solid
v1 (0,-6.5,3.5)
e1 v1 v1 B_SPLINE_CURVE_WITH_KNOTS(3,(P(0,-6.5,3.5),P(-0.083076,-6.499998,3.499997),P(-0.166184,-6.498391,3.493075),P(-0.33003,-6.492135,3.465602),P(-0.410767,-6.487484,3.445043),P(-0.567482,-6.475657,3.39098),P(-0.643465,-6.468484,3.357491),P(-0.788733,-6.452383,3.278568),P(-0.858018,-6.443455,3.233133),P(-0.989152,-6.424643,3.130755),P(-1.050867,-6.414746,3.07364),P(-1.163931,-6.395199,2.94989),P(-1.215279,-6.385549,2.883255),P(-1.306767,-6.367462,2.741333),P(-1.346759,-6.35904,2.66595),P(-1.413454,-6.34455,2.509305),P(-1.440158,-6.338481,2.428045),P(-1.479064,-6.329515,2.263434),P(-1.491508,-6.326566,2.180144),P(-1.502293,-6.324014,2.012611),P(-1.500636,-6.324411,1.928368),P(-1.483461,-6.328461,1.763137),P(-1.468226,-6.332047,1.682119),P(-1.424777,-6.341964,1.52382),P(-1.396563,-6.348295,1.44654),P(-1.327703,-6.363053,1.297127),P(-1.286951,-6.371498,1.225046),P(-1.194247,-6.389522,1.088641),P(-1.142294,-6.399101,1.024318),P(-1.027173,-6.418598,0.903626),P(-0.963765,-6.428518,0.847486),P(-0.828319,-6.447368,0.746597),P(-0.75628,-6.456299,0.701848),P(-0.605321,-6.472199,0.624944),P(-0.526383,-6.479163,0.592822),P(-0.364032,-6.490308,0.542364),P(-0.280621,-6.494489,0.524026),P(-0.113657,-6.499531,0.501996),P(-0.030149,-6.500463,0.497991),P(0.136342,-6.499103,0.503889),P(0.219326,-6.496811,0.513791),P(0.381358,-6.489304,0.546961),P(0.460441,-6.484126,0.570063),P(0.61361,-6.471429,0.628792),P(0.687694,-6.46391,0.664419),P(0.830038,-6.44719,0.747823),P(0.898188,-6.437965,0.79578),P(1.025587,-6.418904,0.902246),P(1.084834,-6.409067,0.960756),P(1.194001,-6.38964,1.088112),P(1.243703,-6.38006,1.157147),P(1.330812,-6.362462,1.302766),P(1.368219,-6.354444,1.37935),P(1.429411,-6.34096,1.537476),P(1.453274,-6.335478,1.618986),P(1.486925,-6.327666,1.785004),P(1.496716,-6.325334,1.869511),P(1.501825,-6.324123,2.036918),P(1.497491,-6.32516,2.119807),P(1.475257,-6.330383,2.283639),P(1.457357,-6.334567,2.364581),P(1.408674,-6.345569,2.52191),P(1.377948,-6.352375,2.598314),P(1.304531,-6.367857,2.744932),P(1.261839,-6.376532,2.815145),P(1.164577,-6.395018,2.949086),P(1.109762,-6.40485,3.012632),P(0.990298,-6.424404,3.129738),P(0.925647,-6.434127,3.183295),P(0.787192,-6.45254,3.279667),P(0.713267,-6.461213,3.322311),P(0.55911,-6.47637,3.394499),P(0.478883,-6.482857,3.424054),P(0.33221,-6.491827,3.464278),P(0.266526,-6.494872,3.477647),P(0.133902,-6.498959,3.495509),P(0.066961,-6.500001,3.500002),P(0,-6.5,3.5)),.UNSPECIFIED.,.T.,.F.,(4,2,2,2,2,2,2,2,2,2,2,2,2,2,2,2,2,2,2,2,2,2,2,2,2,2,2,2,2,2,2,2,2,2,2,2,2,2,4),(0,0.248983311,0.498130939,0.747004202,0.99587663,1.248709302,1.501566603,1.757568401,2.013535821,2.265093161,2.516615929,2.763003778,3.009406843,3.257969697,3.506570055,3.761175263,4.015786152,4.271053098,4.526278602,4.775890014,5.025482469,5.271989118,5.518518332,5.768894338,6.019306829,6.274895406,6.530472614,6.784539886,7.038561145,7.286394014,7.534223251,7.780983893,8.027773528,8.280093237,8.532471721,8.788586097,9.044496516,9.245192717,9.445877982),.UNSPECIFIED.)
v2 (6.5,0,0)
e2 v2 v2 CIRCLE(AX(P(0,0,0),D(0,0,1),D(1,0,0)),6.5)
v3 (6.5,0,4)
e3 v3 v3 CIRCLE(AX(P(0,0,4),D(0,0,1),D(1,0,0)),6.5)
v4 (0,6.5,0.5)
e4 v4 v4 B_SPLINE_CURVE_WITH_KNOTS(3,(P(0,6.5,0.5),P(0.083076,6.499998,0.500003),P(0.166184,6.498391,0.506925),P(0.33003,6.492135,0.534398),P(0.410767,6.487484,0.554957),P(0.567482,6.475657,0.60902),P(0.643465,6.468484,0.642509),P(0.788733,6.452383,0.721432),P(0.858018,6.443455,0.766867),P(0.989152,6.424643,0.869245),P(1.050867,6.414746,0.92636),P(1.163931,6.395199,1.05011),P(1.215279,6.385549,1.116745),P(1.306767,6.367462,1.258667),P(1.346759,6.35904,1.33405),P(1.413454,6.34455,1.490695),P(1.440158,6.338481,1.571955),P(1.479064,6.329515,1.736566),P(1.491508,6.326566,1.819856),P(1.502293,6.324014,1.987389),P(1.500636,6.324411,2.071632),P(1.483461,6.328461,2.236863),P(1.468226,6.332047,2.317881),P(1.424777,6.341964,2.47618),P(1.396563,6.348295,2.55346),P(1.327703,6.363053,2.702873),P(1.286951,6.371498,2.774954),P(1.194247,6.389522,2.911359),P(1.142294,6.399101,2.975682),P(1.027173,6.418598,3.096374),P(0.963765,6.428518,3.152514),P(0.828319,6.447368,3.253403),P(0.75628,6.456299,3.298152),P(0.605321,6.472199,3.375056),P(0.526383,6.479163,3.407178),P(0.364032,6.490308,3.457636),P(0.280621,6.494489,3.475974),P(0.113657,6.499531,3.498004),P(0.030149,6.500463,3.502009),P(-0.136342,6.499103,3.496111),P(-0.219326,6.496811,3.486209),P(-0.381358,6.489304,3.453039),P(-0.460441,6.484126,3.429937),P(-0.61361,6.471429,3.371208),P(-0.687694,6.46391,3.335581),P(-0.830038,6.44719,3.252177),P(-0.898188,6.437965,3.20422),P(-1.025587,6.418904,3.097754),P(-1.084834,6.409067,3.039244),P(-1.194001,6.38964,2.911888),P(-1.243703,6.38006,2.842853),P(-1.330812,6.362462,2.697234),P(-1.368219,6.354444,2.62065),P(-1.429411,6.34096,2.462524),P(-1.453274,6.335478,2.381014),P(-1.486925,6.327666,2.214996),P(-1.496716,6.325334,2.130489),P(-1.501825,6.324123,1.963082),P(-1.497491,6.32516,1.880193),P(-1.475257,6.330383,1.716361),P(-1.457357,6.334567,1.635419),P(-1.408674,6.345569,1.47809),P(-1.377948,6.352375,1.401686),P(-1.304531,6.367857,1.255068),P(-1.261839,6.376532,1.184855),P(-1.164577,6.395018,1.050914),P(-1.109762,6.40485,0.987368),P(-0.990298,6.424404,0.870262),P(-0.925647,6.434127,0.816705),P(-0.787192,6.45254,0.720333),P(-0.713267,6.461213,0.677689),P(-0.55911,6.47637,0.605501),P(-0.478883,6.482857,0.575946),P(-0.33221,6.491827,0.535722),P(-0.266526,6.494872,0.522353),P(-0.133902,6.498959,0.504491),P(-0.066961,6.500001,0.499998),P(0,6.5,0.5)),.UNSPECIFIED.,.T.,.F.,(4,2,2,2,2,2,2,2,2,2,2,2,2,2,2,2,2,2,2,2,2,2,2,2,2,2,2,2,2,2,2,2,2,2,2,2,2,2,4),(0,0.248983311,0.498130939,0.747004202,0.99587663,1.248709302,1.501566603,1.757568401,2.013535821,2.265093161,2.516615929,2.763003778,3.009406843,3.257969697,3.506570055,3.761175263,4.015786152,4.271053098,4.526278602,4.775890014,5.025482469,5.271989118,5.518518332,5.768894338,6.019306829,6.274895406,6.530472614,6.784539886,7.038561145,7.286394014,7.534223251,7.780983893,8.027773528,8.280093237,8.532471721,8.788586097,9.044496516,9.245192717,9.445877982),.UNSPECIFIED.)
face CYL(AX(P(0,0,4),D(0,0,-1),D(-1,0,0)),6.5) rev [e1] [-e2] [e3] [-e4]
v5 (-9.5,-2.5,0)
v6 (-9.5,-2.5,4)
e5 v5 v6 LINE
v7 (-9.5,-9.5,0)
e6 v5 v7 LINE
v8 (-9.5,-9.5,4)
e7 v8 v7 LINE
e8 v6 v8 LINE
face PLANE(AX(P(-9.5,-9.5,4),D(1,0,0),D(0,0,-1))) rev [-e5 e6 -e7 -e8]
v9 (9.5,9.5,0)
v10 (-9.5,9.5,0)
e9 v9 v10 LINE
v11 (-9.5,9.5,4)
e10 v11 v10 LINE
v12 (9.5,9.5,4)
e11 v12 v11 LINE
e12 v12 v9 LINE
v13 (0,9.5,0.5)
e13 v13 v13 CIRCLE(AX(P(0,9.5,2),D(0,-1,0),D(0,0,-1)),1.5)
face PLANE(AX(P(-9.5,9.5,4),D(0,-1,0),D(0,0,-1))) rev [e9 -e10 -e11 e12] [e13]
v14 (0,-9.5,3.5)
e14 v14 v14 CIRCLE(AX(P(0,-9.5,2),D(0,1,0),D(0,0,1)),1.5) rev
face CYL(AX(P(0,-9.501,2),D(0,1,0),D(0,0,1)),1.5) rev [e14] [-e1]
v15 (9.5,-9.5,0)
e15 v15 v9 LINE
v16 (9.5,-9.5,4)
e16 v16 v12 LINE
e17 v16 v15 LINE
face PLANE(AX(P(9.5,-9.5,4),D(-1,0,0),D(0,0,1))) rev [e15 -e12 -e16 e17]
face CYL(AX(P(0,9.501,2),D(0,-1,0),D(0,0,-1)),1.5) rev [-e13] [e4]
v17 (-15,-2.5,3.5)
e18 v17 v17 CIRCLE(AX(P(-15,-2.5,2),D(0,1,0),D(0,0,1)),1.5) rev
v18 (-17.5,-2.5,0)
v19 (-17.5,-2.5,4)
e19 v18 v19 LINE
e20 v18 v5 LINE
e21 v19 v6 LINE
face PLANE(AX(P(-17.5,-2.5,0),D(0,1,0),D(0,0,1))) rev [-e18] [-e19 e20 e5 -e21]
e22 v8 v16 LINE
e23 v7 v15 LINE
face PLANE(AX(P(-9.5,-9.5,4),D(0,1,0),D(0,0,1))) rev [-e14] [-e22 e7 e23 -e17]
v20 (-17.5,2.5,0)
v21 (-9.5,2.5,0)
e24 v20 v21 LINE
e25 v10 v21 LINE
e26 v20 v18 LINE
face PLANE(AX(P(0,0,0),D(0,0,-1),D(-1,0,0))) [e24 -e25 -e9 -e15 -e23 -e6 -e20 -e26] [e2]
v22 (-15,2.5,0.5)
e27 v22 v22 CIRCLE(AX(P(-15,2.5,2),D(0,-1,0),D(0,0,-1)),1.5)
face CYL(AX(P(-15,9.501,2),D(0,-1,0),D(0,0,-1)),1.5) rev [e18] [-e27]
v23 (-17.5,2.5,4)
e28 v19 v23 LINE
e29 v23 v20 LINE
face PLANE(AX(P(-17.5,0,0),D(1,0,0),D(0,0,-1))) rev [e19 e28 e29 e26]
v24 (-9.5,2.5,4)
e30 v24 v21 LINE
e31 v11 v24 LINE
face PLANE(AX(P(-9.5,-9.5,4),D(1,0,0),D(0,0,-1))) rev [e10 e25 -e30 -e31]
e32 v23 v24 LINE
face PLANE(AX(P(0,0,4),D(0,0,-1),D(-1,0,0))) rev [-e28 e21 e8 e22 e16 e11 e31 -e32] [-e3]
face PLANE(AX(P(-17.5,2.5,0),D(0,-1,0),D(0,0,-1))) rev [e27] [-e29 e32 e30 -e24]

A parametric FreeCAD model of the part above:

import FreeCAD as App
import Part
import Sketcher

V = App.Vector
Q = App.Units.Quantity


def add_polygon(sketch, points):
    """Adds a closed chain of lines whose ends are joined by coincident constraints."""
    first, n = sketch.GeometryCount, len(points)
    for a, b in zip(points, points[1:] + points[:1]):
        sketch.addGeometry(Part.LineSegment(App.Vector(*a, 0), App.Vector(*b, 0)), False)
    for i in range(n):
        sketch.addConstraint(Sketcher.Constraint("Coincident", first + i, 2, first + (i + 1) % n, 1))

doc = App.newDocument("Part")
body = doc.addObject("PartDesign::Body", "Body")

# Sketch on XY plane
sketch1 = body.newObject("Sketcher::SketchObject", "Sketch")
sketch1.AttachmentSupport = (doc.getObject("XY_Plane"), [""])
sketch1.MapMode = "FlatFace"
add_polygon(sketch1, [(-9.5, 9.5), (-9.5, -9.5), (9.5, -9.5), (9.5, 9.5)])  # lines 0-3
sketch1.addGeometry(Part.Circle(V(0, 0, 0), V(0, 0, 1), 6.5), False)  # 4
sketch1.addConstraint([
    Sketcher.Constraint("Vertical", 0),
    Sketcher.Constraint("Horizontal", 1),
    Sketcher.Constraint("Vertical", 2),
    Sketcher.Constraint("Horizontal", 3),
    Sketcher.Constraint("Coincident", 4, 3, -1, 1),
    Sketcher.Constraint("Symmetric", 0, 2, 2, 2, -1, 1),
    Sketcher.Constraint("Equal", 3, 0),
    Sketcher.Constraint("Diameter", 4, Q("13 mm")),
    Sketcher.Constraint("DistanceX", 1, 1, 1, 2, Q("19 mm")),
])
pad1 = body.newObject("PartDesign::Pad", "Pad")
pad1.Profile = sketch1
pad1.Length = 4

# Sketch on XZ plane
sketch2 = body.newObject("Sketcher::SketchObject", "Sketch001")
sketch2.AttachmentSupport = (doc.getObject("XZ_Plane"), [""])
sketch2.MapMode = "FlatFace"
sketch2.addGeometry(Part.Circle(V(0, 2, 0), V(0, 0, 1), 1.5), False)
sketch2.addConstraint([
    Sketcher.Constraint("PointOnObject", 0, 3, -2),
    Sketcher.Constraint("Diameter", 0, Q("3 mm")),
    Sketcher.Constraint("DistanceY", -1, 1, 0, 3, Q("2 mm")),
])
pocket1 = body.newObject("PartDesign::Pocket", "Pocket")
pocket1.Profile = sketch2
pocket1.Length = 9.5

# Sketch on XZ plane
sketch3 = body.newObject("Sketcher::SketchObject", "Sketch002")
sketch3.AttachmentSupport = (doc.getObject("XZ_Plane"), [""])
sketch3.MapMode = "FlatFace"
sketch3.addGeometry(Part.Circle(V(0, 2, 0), V(0, 0, 1), 1.5), False)
sketch3.addConstraint([
    Sketcher.Constraint("PointOnObject", 0, 3, -2),
    Sketcher.Constraint("Diameter", 0, Q("3 mm")),
    Sketcher.Constraint("DistanceY", -1, 1, 0, 3, Q("2 mm")),
])
pocket2 = body.newObject("PartDesign::Pocket", "Pocket001")
pocket2.Profile = sketch3
pocket2.Length = 9.5
pocket2.Reversed = True

# Sketch on YZ plane
sketch4 = body.newObject("Sketcher::SketchObject", "Sketch003")
sketch4.AttachmentSupport = (doc.getObject("YZ_Plane"), [""])
sketch4.MapMode = "FlatFace"
sketch4.AttachmentOffset = App.Placement(V(0, 0, -9.5), App.Rotation())
add_polygon(sketch4, [(2.5, 0), (-2.5, 0), (-2.5, 4), (2.5, 4)])  # lines 0-3
sketch4.addConstraint([
    Sketcher.Constraint("Horizontal", 0),
    Sketcher.Constraint("Vertical", 1),
    Sketcher.Constraint("Horizontal", 2),
    Sketcher.Constraint("Vertical", 3),
    Sketcher.Constraint("Symmetric", 0, 2, 3, 2, -1, 1),
    Sketcher.Constraint("DistanceX", 0, 2, 0, 1, Q("5 mm")),
    Sketcher.Constraint("DistanceY", 1, 1, 1, 2, Q("4 mm")),
])
pad2 = body.newObject("PartDesign::Pad", "Pad001")
pad2.Profile = sketch4
pad2.Length = 8
pad2.Reversed = True

# Sketch on XZ plane
sketch5 = body.newObject("Sketcher::SketchObject", "Sketch004")
sketch5.AttachmentSupport = (doc.getObject("XZ_Plane"), [""])
sketch5.MapMode = "FlatFace"
sketch5.addGeometry(Part.Circle(V(-15, 2, 0), V(0, 0, 1), 1.5), False)
sketch5.addConstraint([
    Sketcher.Constraint("Diameter", 0, Q("3 mm")),
    Sketcher.Constraint("DistanceX", 0, 3, -1, 1, Q("15 mm")),
    Sketcher.Constraint("DistanceY", -1, 1, 0, 3, Q("2 mm")),
])
pocket3 = body.newObject("PartDesign::Pocket", "Pocket002")
pocket3.Profile = sketch5
pocket3.Type = "UpToFirst"
pocket3.Reversed = True

# Sketch on XZ plane
sketch6 = body.newObject("Sketcher::SketchObject", "Sketch005")
sketch6.AttachmentSupport = (doc.getObject("XZ_Plane"), [""])
sketch6.MapMode = "FlatFace"
sketch6.addGeometry(Part.Circle(V(-15, 2, 0), V(0, 0, 1), 1.5), False)
sketch6.addConstraint([
    Sketcher.Constraint("Diameter", 0, Q("3 mm")),
    Sketcher.Constraint("DistanceX", 0, 3, -1, 1, Q("15 mm")),
    Sketcher.Constraint("DistanceY", -1, 1, 0, 3, Q("2 mm")),
])
pocket4 = body.newObject("PartDesign::Pocket", "Pocket003")
pocket4.Profile = sketch6
pocket4.Type = "UpToFirst"

doc.recompute()
